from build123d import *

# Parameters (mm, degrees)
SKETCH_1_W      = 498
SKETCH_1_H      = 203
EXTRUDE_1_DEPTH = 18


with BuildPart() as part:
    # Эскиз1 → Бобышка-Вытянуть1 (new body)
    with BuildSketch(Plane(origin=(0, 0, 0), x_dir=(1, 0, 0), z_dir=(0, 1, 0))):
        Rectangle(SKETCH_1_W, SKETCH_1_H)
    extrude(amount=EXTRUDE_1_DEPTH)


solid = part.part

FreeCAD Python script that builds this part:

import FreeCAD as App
import Part
import Sketcher
from FreeCAD import Vector


def add_polygon(sketch, points):
    """Adds a closed chain of lines whose ends are joined by coincident constraints."""
    first, n = sketch.GeometryCount, len(points)
    for a, b in zip(points, points[1:] + points[:1]):
        sketch.addGeometry(Part.LineSegment(App.Vector(*a, 0), App.Vector(*b, 0)), False)
    for i in range(n):
        sketch.addConstraint(Sketcher.Constraint("Coincident", first + i, 2, first + (i + 1) % n, 1))

doc = App.newDocument("Part")
body = doc.addObject("PartDesign::Body", "Body")

sketch1 = doc.addObject("Sketcher::SketchObject", "Sketch")
body.addObject(sketch1)
sketch1.AttachmentSupport = (doc.XZ_Plane, [""])
sketch1.MapMode = "FlatFace"
add_polygon(sketch1, [(-249, -102), (-249, 102), (249, 102), (249, -102)])
sketch1.addConstraint([
    Sketcher.Constraint("Vertical", 0),
    Sketcher.Constraint("Horizontal", 1),
    Sketcher.Constraint("Vertical", 2),
    Sketcher.Constraint("Horizontal", 3),
    Sketcher.Constraint("Symmetric", 0, 2, 2, 2, -1, 1),
    Sketcher.Constraint("DistanceX", 1, 1, 1, 2, 498.0),
    Sketcher.Constraint("DistanceY", 0, 1, 0, 2, 203.0),
])
pad1 = doc.addObject("PartDesign::Pad", "Pad")
body.addObject(pad1)
pad1.Profile = sketch1
pad1.Length = 18
pad1.Reversed = True

doc.recompute()
